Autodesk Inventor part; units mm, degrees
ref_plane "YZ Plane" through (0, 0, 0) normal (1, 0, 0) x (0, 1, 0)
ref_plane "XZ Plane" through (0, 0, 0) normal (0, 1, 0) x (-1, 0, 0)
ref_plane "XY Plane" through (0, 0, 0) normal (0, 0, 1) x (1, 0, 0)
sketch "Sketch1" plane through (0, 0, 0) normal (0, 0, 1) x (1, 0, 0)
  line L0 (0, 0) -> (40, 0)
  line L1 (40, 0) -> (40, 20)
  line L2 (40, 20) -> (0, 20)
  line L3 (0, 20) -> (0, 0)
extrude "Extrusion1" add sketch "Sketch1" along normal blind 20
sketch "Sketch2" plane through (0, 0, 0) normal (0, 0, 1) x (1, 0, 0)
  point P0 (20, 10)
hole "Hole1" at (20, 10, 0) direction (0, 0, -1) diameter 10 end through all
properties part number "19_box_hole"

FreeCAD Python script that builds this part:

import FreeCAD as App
import Part
import Sketcher


def add_polygon(sketch, points):
    """Adds a closed chain of lines whose ends are joined by coincident constraints."""
    first, n = sketch.GeometryCount, len(points)
    for a, b in zip(points, points[1:] + points[:1]):
        sketch.addGeometry(Part.LineSegment(App.Vector(*a, 0), App.Vector(*b, 0)), False)
    for i in range(n):
        sketch.addConstraint(Sketcher.Constraint("Coincident", first + i, 2, first + (i + 1) % n, 1))

doc = App.newDocument("Part")
body = doc.addObject("PartDesign::Body", "Body")

# Sketch on XY plane
sketch1 = body.newObject("Sketcher::SketchObject", "Sketch")
sketch1.AttachmentSupport = (doc.getObject("XY_Plane"), [""])
sketch1.MapMode = "FlatFace"
add_polygon(sketch1, [(0, 20), (0, 0), (40, 0), (40, 20)])  # lines 0-3
sketch1.addConstraint(Sketcher.Constraint("Vertical", 0))
sketch1.addConstraint(Sketcher.Constraint("Horizontal", 1))
sketch1.addConstraint(Sketcher.Constraint("Vertical", 2))
sketch1.addConstraint(Sketcher.Constraint("Horizontal", 3))
sketch1.addConstraint(Sketcher.Constraint("Coincident", 0, 2, -1, 1))
sketch1.addConstraint(Sketcher.Constraint("DistanceX", 1, 1, 1, 2, 40.0))
sketch1.addConstraint(Sketcher.Constraint("DistanceY", 0, 2, 0, 1, 20.0))
pad1 = body.newObject("PartDesign::Pad", "Pad")
pad1.Profile = sketch1
pad1.Length = 20

# Sketch on XY plane
sketch2 = body.newObject("Sketcher::SketchObject", "Sketch001")
sketch2.AttachmentSupport = (doc.getObject("XY_Plane"), [""])
sketch2.MapMode = "FlatFace"
sketch2.addGeometry(Part.Circle(App.Vector(20, 10, 0), App.Vector(0, 0, 1), 5), False)
sketch2.addConstraint(Sketcher.Constraint("Diameter", 0, 10.0))
sketch2.addConstraint(Sketcher.Constraint("DistanceX", -1, 1, 0, 3, 20.0))
sketch2.addConstraint(Sketcher.Constraint("DistanceY", -1, 1, 0, 3, 10.0))
doc.recompute()
hole = body.newObject("PartDesign::Hole", "Hole")
hole.Profile = sketch2
hole.ThreadType = "None"
hole.Diameter = 10
hole.DepthType = "ThroughAll"

doc.recompute()
